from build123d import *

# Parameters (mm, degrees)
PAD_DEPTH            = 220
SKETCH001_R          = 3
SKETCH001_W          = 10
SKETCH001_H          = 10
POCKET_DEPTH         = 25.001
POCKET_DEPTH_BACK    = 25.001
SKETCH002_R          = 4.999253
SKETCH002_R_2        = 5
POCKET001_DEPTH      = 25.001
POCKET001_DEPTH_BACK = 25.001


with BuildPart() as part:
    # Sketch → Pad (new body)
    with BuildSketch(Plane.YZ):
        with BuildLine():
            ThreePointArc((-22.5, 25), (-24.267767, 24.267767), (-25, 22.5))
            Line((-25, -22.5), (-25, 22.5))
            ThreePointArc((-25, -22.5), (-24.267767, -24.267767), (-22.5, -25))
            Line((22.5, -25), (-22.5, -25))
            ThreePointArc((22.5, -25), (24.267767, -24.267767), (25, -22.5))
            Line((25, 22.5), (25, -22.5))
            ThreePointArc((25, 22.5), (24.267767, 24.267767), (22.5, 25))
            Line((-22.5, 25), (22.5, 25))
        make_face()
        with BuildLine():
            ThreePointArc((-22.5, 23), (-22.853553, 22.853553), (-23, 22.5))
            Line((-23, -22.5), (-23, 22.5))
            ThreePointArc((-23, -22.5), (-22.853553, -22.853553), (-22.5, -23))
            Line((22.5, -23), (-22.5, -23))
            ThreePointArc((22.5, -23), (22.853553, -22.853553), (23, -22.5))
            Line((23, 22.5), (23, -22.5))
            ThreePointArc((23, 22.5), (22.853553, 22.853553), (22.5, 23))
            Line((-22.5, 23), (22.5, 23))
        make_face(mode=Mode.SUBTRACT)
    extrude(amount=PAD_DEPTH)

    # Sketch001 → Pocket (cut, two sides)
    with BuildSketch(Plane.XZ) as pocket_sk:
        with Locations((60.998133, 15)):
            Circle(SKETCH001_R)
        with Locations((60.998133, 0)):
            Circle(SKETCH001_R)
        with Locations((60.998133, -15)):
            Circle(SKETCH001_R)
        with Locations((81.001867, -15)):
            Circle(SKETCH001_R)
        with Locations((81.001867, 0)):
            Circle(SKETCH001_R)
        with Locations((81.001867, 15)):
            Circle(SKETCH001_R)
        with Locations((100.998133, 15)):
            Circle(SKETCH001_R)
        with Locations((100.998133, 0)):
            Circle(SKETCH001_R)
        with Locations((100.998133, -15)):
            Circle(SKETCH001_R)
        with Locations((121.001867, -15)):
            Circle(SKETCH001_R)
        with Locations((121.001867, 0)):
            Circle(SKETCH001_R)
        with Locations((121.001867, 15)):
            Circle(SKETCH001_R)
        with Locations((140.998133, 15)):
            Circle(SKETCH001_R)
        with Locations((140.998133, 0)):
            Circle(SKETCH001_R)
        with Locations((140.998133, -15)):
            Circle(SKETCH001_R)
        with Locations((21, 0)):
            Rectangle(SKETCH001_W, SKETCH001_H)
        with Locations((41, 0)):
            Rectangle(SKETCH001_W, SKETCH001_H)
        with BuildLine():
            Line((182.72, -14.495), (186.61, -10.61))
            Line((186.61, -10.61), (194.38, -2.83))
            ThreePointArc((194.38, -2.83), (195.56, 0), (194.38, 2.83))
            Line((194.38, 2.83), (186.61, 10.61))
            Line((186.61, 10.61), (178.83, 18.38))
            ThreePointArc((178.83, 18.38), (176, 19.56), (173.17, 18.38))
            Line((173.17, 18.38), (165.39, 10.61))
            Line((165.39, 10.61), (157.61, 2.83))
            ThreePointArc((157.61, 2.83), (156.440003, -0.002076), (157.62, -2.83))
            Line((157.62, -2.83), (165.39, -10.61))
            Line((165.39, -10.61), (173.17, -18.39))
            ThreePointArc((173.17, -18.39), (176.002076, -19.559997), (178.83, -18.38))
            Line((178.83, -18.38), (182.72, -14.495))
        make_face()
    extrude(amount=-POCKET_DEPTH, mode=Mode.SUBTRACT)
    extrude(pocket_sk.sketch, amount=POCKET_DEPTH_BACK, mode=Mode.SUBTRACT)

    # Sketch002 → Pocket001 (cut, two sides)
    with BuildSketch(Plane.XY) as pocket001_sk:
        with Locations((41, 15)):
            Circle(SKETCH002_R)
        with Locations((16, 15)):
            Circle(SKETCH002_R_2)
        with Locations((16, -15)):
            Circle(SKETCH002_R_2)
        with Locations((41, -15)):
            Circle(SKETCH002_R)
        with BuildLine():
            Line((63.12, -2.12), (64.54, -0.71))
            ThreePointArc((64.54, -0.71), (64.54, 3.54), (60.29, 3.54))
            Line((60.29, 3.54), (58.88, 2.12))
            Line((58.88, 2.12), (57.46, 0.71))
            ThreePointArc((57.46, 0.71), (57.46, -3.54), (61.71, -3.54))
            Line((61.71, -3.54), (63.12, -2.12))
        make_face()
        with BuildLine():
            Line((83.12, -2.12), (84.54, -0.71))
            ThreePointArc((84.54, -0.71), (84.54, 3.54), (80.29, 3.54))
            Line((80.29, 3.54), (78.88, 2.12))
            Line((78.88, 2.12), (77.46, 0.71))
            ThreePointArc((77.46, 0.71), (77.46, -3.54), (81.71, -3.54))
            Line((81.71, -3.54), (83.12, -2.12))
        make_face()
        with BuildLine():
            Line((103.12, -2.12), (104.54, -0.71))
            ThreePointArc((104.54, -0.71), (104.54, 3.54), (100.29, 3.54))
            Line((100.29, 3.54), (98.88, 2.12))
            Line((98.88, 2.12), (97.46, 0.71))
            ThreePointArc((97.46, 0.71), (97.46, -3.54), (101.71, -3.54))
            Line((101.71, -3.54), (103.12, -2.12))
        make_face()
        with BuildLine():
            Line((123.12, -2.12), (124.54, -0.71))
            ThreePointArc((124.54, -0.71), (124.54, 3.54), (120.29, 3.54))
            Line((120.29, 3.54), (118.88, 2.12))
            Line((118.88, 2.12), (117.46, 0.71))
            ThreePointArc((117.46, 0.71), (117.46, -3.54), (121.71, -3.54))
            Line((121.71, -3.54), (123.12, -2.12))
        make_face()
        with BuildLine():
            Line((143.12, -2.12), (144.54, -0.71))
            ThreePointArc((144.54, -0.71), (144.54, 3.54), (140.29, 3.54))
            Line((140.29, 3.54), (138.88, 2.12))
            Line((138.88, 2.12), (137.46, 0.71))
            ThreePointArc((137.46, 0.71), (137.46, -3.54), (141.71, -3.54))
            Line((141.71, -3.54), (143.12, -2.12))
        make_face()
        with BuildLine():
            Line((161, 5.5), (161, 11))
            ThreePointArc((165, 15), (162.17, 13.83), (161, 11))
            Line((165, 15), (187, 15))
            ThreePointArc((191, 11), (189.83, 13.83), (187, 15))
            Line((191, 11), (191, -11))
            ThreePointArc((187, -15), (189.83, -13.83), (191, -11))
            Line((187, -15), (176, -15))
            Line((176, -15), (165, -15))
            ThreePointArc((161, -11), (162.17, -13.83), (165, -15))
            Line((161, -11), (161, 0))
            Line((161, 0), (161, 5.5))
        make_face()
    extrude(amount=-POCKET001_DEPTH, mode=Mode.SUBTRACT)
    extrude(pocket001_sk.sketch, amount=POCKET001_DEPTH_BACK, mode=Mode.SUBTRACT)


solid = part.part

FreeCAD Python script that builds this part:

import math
import FreeCAD as App
import Part
import Sketcher

V = App.Vector
Q = App.Units.Quantity

doc = App.newDocument("Part")
params = doc.addObject("Spreadsheet::Sheet", "Params")
for row, (alias, value) in enumerate([
    ("sketch1_radius", "2.5 mm"),
    ("sketch1_radius2", "0.500001 mm"),
    ("sketch1_width", "45 mm"),
    ("pad1_length", "220 mm"),
    ("sketch2_diameter", "6 mm"),
    ("sketch2_width", "10 mm"),
    ("sketch3_diameter", "10 mm"),
    ("sketch3_width", "22 mm"),
], start=1):
    params.set(f"A{row}", alias)
    params.set(f"B{row}", "=" + value)
    params.setAlias(f"B{row}", alias)

body = doc.addObject("PartDesign::Body", "Body")

# Sketch on YZ plane
sketch1 = body.newObject("Sketcher::SketchObject", "Sketch")
sketch1.AttachmentSupport = (doc.getObject("YZ_Plane"), [""])
sketch1.MapMode = "FlatFace"
sketch1.addGeometry([
    Part.ArcOfCircle(Part.Circle(V(-22.5, 22.5, 0), V(0, 0, 1), 2.5), math.radians(89.999996), math.radians(180.000004)),  # 0
    Part.LineSegment(V(-25, 22.5, 0), V(-25, -22.5, 0)),  # 1
    Part.ArcOfCircle(Part.Circle(V(-22.5, -22.5, 0), V(0, 0, 1), 2.5), math.radians(179.999996), math.radians(270.000004)),  # 2
    Part.LineSegment(V(-22.5, -25, 0), V(22.5, -25, 0)),  # 3
    Part.ArcOfCircle(Part.Circle(V(22.5, -22.5, 0), V(0, 0, 1), 2.5), math.radians(-90.000004), math.radians(0.000004)),  # 4
    Part.LineSegment(V(25, -22.5, 0), V(25, 22.5, 0)),  # 5
    Part.ArcOfCircle(Part.Circle(V(22.5, 22.5, 0), V(0, 0, 1), 2.5), math.radians(-0.000004), math.radians(90.000004)),  # 6
    Part.LineSegment(V(22.5, 25, 0), V(-22.5, 25, 0)),  # 7
    Part.ArcOfCircle(Part.Circle(V(-22.499999, 22.499999, 0), V(0, 0, 1), 0.500001), math.radians(90.000153), math.radians(179.999847)),  # 8
    Part.LineSegment(V(-22.5, 23, 0), V(22.5, 23, 0)),  # 9
    Part.ArcOfCircle(Part.Circle(V(22.499999, 22.499999, 0), V(0, 0, 1), 0.500001), math.radians(0.000153), math.radians(89.999847)),  # 10
    Part.LineSegment(V(23, 22.5, 0), V(23, -22.5, 0)),  # 11
    Part.ArcOfCircle(Part.Circle(V(22.499999, -22.499999, 0), V(0, 0, 1), 0.500001), math.radians(-89.999847), math.radians(-0.000153)),  # 12
    Part.LineSegment(V(22.5, -23, 0), V(-22.5, -23, 0)),  # 13
    Part.ArcOfCircle(Part.Circle(V(-22.499999, -22.499999, 0), V(0, 0, 1), 0.500001), math.radians(-179.999847), math.radians(-90.000153)),  # 14
    Part.LineSegment(V(-23, -22.5, 0), V(-23, 22.5, 0)),  # 15
], False)
sketch1.addConstraint([
    Sketcher.Constraint("Tangent", 0, 2, 1, 1),
    Sketcher.Constraint("Tangent", 1, 2, 2, 1),
    Sketcher.Constraint("Tangent", 2, 2, 3, 1),
    Sketcher.Constraint("Tangent", 3, 2, 4, 1),
    Sketcher.Constraint("Tangent", 4, 2, 5, 1),
    Sketcher.Constraint("Tangent", 5, 2, 6, 1),
    Sketcher.Constraint("Tangent", 6, 2, 7, 1),
    Sketcher.Constraint("Tangent", 7, 2, 0, 1),
    Sketcher.Constraint("Coincident", 8, 1, 9, 1),
    Sketcher.Constraint("Coincident", 9, 2, 10, 2),
    Sketcher.Constraint("Coincident", 10, 1, 11, 1),
    Sketcher.Constraint("Coincident", 11, 2, 12, 2),
    Sketcher.Constraint("Coincident", 12, 1, 13, 1),
    Sketcher.Constraint("Coincident", 13, 2, 14, 2),
    Sketcher.Constraint("Coincident", 14, 1, 15, 1),
    Sketcher.Constraint("Coincident", 15, 2, 8, 2),
    Sketcher.Constraint("Vertical", 1),
    Sketcher.Constraint("Horizontal", 3),
    Sketcher.Constraint("Vertical", 5),
    Sketcher.Constraint("Horizontal", 7),
    Sketcher.Constraint("Horizontal", 9),
    Sketcher.Constraint("Vertical", 11),
    Sketcher.Constraint("Horizontal", 13),
    Sketcher.Constraint("Vertical", 15),
    Sketcher.Constraint("Coincident", 8, 3, 0, 3),
    Sketcher.Constraint("Coincident", 10, 3, 6, 3),
    Sketcher.Constraint("Coincident", 12, 3, 4, 3),
    Sketcher.Constraint("Equal", 0, 2),
    Sketcher.Constraint("Equal", 2, 4),
    Sketcher.Constraint("Equal", 4, 6),
    Sketcher.Constraint("Equal", 12, 14),
    Sketcher.Constraint("Symmetric", 0, 3, 4, 3, -1, 1),
    Sketcher.Constraint("Horizontal", 5, 2, 10, 1),
    Sketcher.Constraint("Horizontal", 4, 2, 11, 2),
    Sketcher.Constraint("Horizontal", 11, 2, 14, 1),
    Sketcher.Constraint("Horizontal", 10, 1, 15, 2),
    Sketcher.Constraint("Vertical", 7, 2, 8, 1),
    Sketcher.Constraint("Vertical", 6, 2, 9, 2),
    Sketcher.Constraint("Vertical", 9, 2, 12, 1),
    Sketcher.Constraint("Vertical", 8, 1, 13, 2),
    Sketcher.Constraint("Equal", 13, 1),
    Sketcher.Constraint("Radius", 0, 2.5),
    Sketcher.Constraint("Radius", 8, 0.500001),
    Sketcher.Constraint("DistanceX", 3, 1, 3, 2, 45.0),
])
sketch1.setExpression("Constraints[41]", "Params.sketch1_radius")
sketch1.setExpression("Constraints[42]", "Params.sketch1_radius2")
sketch1.setExpression("Constraints[43]", "Params.sketch1_width")
pad1 = body.newObject("PartDesign::Pad", "Pad")
pad1.Profile = sketch1
pad1.setExpression("Length", "Params.pad1_length")

# Sketch on XZ plane
sketch2 = body.newObject("Sketcher::SketchObject", "Sketch001")
sketch2.AttachmentSupport = (doc.getObject("XZ_Plane"), [""])
sketch2.MapMode = "FlatFace"
sketch2.addGeometry([
    Part.Circle(V(60.998133, 15, 0), V(0, 0, 1), 3),  # 0
    Part.Circle(V(60.998133, 0, 0), V(0, 0, 1), 3),  # 1
    Part.Circle(V(60.998133, -15, 0), V(0, 0, 1), 3),  # 2
    Part.Circle(V(81.001867, -15, 0), V(0, 0, 1), 3),  # 3
    Part.Circle(V(81.001867, 0, 0), V(0, 0, 1), 3),  # 4
    Part.Circle(V(81.001867, 15, 0), V(0, 0, 1), 3),  # 5
    Part.Circle(V(100.998133, 15, 0), V(0, 0, 1), 3),  # 6
    Part.Circle(V(100.998133, 0, 0), V(0, 0, 1), 3),  # 7
    Part.Circle(V(100.998133, -15, 0), V(0, 0, 1), 3),  # 8
    Part.Circle(V(121.001867, -15, 0), V(0, 0, 1), 3),  # 9
    Part.Circle(V(121.001867, 0, 0), V(0, 0, 1), 3),  # 10
    Part.Circle(V(121.001867, 15, 0), V(0, 0, 1), 3),  # 11
    Part.Circle(V(140.998133, 15, 0), V(0, 0, 1), 3),  # 12
    Part.Circle(V(140.998133, 0, 0), V(0, 0, 1), 3),  # 13
    Part.Circle(V(140.998133, -15, 0), V(0, 0, 1), 3),  # 14
    Part.LineSegment(V(16, 5, 0), V(16, -5, 0)),  # 15
    Part.LineSegment(V(16, -5, 0), V(26, -5, 0)),  # 16
    Part.LineSegment(V(26, -5, 0), V(26, 5, 0)),  # 17
    Part.LineSegment(V(26, 5, 0), V(16, 5, 0)),  # 18
    Part.LineSegment(V(36, 5, 0), V(36, -5, 0)),  # 19
    Part.LineSegment(V(36, -5, 0), V(46, -5, 0)),  # 20
    Part.LineSegment(V(46, -5, 0), V(46, 5, 0)),  # 21
    Part.LineSegment(V(46, 5, 0), V(36, 5, 0)),  # 22
    Part.LineSegment(V(186.61, -10.61, 0), V(194.38, -2.83, 0)),  # 23
    Part.ArcOfCircle(Part.Circle(V(191.576398, 0, 0), V(0, 0, 1), 3.983602), math.radians(-45.268478), math.radians(45.268478)),  # 24
    Part.LineSegment(V(194.38, 2.83, 0), V(186.61, 10.61, 0)),  # 25
    Part.LineSegment(V(186.61, 10.61, 0), V(178.83, 18.38, 0)),  # 26
    Part.ArcOfCircle(Part.Circle(V(176, 15.576398, 0), V(0, 0, 1), 3.983602), math.radians(44.731522), math.radians(135.268478)),  # 27
    Part.LineSegment(V(173.17, 18.38, 0), V(165.39, 10.61, 0)),  # 28
    Part.LineSegment(V(165.39, 10.61, 0), V(157.61, 2.83, 0)),  # 29
    Part.ArcOfCircle(Part.Circle(V(160.435553, 0.004983, 0), V(0, 0, 1), 3.995556), math.radians(135.005436), math.radians(225.197023)),  # 30
    Part.LineSegment(V(157.62, -2.83, 0), V(165.39, -10.61, 0)),  # 31
    Part.LineSegment(V(165.39, -10.61, 0), V(173.17, -18.39, 0)),  # 32
    Part.ArcOfCircle(Part.Circle(V(175.995017, -15.564447, 0), V(0, 0, 1), 3.995556), math.radians(-134.994564), math.radians(-44.802977)),  # 33
    Part.LineSegment(V(178.83, -18.38, 0), V(186.61, -10.61, 0)),  # 34
], False)
sketch2.addConstraint([
    Sketcher.Constraint("Coincident", 15, 2, 16, 1),
    Sketcher.Constraint("Coincident", 16, 2, 17, 1),
    Sketcher.Constraint("Coincident", 17, 2, 18, 1),
    Sketcher.Constraint("Coincident", 18, 2, 15, 1),
    Sketcher.Constraint("Coincident", 19, 2, 20, 1),
    Sketcher.Constraint("Coincident", 20, 2, 21, 1),
    Sketcher.Constraint("Coincident", 21, 2, 22, 1),
    Sketcher.Constraint("Coincident", 22, 2, 19, 1),
    Sketcher.Constraint("Coincident", 23, 2, 24, 1),
    Sketcher.Constraint("Coincident", 24, 2, 25, 1),
    Sketcher.Constraint("Coincident", 25, 2, 26, 1),
    Sketcher.Constraint("Coincident", 26, 2, 27, 1),
    Sketcher.Constraint("Coincident", 27, 2, 28, 1),
    Sketcher.Constraint("Coincident", 28, 2, 29, 1),
    Sketcher.Constraint("Coincident", 29, 2, 30, 1),
    Sketcher.Constraint("Coincident", 30, 2, 31, 1),
    Sketcher.Constraint("Coincident", 31, 2, 32, 1),
    Sketcher.Constraint("Coincident", 32, 2, 33, 1),
    Sketcher.Constraint("Coincident", 33, 2, 34, 1),
    Sketcher.Constraint("Coincident", 34, 2, 23, 1),
    Sketcher.Constraint("Vertical", 15),
    Sketcher.Constraint("Horizontal", 16),
    Sketcher.Constraint("Vertical", 17),
    Sketcher.Constraint("Horizontal", 18),
    Sketcher.Constraint("Vertical", 19),
    Sketcher.Constraint("Horizontal", 20),
    Sketcher.Constraint("Vertical", 21),
    Sketcher.Constraint("Horizontal", 22),
    Sketcher.Constraint("Equal", 0, 1),
    Sketcher.Constraint("Equal", 1, 2),
    Sketcher.Constraint("Equal", 2, 3),
    Sketcher.Constraint("Equal", 3, 4),
    Sketcher.Constraint("Equal", 4, 5),
    Sketcher.Constraint("Equal", 5, 6),
    Sketcher.Constraint("Equal", 6, 7),
    Sketcher.Constraint("Equal", 7, 8),
    Sketcher.Constraint("Equal", 8, 9),
    Sketcher.Constraint("Equal", 9, 10),
    Sketcher.Constraint("Equal", 10, 11),
    Sketcher.Constraint("Equal", 11, 12),
    Sketcher.Constraint("Equal", 12, 13),
    Sketcher.Constraint("Equal", 13, 14),
    Sketcher.Constraint("Equal", 24, 27),
    Sketcher.Constraint("Equal", 30, 33),
    Sketcher.Constraint("Symmetric", 0, 3, 2, 3, -1),
    Sketcher.Constraint("Symmetric", 3, 3, 5, 3, -1),
    Sketcher.Constraint("Symmetric", 6, 3, 8, 3, -1),
    Sketcher.Constraint("Symmetric", 9, 3, 11, 3, -1),
    Sketcher.Constraint("Symmetric", 12, 3, 14, 3, -1),
    Sketcher.Constraint("Symmetric", 23, 2, 24, 2, -1),
    Sketcher.Constraint("Symmetric", 28, 2, 31, 2, -1),
    Sketcher.Constraint("Symmetric", 26, 2, 33, 2, -1),
    Sketcher.Constraint("Symmetric", 25, 2, 34, 2, -1),
    Sketcher.Constraint("PointOnObject", 1, 3, -1),
    Sketcher.Constraint("PointOnObject", 4, 3, -1),
    Sketcher.Constraint("PointOnObject", 7, 3, -1),
    Sketcher.Constraint("PointOnObject", 10, 3, -1),
    Sketcher.Constraint("PointOnObject", 13, 3, -1),
    Sketcher.Constraint("Perpendicular", 23, 26),
    Sketcher.Constraint("Perpendicular", 25, 28),
    Sketcher.Constraint("Perpendicular", 28, 31),
    Sketcher.Constraint("Perpendicular", 29, 32),
    Sketcher.Constraint("Horizontal", 2, 3, 3, 3),
    Sketcher.Constraint("Horizontal", 5, 3, 6, 3),
    Sketcher.Constraint("Horizontal", 8, 3, 9, 3),
    Sketcher.Constraint("Horizontal", 11, 3, 12, 3),
    Sketcher.Constraint("Horizontal", 16, 2, 19, 2),
    Sketcher.Constraint("Horizontal", 18, 2, 21, 2),
    Sketcher.Constraint("Horizontal", 26, 2, 27, 2),
    Sketcher.Constraint("Horizontal", 25, 2, 28, 2),
    Sketcher.Constraint("Horizontal", 24, 2, 29, 2),
    Sketcher.Constraint("Horizontal", 23, 2, 30, 2),
    Sketcher.Constraint("Vertical", 0, 3, 1, 3),
    Sketcher.Constraint("Vertical", 3, 3, 4, 3),
    Sketcher.Constraint("Vertical", 6, 3, 7, 3),
    Sketcher.Constraint("Vertical", 9, 3, 10, 3),
    Sketcher.Constraint("Vertical", 12, 3, 13, 3),
    Sketcher.Constraint("Vertical", 27, 2, 32, 2),
    Sketcher.Constraint("Equal", 18, 20),
    Sketcher.Constraint("Equal", 22, 15),
    Sketcher.Constraint("Equal", 25, 26),
    Sketcher.Constraint("Diameter", 0, 6.0),
    Sketcher.Constraint("DistanceX", 16, 1, 16, 2, 10.0),
    Sketcher.Constraint("Angle", 29, Q("-135 deg")),
    Sketcher.Constraint("DistanceY", -1, 1, 0, 3, 15.0),
    Sketcher.Constraint("DistanceX", -1, 1, 27, 3, 176.0),
    Sketcher.Constraint("DistanceX", -1, 1, 15, 2, 16.0),
    Sketcher.Constraint("DistanceY", 15, 2, -1, 1, 5.0),
    Sketcher.Constraint("DistanceX", -1, 1, 19, 2, 36.0),
    Sketcher.Constraint("DistanceX", 0, 3, 6, 3, 40.0),
    Sketcher.Constraint("DistanceX", 3, 3, 9, 3, 40.0),
    Sketcher.Constraint("DistanceX", 6, 3, 12, 3, 40.0),
    Sketcher.Constraint("Radius", 24, 3.983602),
    Sketcher.Constraint("DistanceX", -1, 1, 23, 2, 194.38),
    Sketcher.Constraint("DistanceY", 23, 2, -1, 1, 2.83),
    Sketcher.Constraint("DistanceX", -1, 1, 25, 2, 186.61),
    Sketcher.Constraint("DistanceY", -1, 1, 25, 2, 10.61),
    Sketcher.Constraint("Radius", 30, 3.995556),
    Sketcher.Constraint("DistanceX", 10, 3, 24, 3, 70.574531),
    Sketcher.Constraint("DistanceX", 13, 3, 30, 3, 19.43742),
])
sketch2.setExpression("Constraints[81]", "Params.sketch2_diameter")
sketch2.setExpression("Constraints[82]", "Params.sketch2_width")
pocket1 = body.newObject("PartDesign::Pocket", "Pocket")
pocket1.Profile = sketch2
pocket1.Type = "ThroughAll"
pocket1.Midplane = True

# Sketch on XY plane
sketch3 = body.newObject("Sketcher::SketchObject", "Sketch002")
sketch3.AttachmentSupport = (doc.getObject("XY_Plane"), [""])
sketch3.MapMode = "FlatFace"
sketch3.addGeometry([
    Part.Circle(V(41, 15, 0), V(0, 0, 1), 4.999253),  # 0
    Part.Circle(V(16, 15, 0), V(0, 0, 1), 5),  # 1
    Part.Circle(V(16, -15, 0), V(0, 0, 1), 5),  # 2
    Part.Circle(V(41, -15, 0), V(0, 0, 1), 4.999253),  # 3
    Part.LineSegment(V(63.12, -2.12, 0), V(64.54, -0.71, 0)),  # 4
    Part.ArcOfCircle(Part.Circle(V(62.415, 1.415, 0), V(0, 0, 1), 3.005204), math.radians(-45), math.radians(135)),  # 5
    Part.LineSegment(V(60.29, 3.54, 0), V(58.88, 2.12, 0)),  # 6
    Part.LineSegment(V(58.88, 2.12, 0), V(57.46, 0.71, 0)),  # 7
    Part.ArcOfCircle(Part.Circle(V(59.585, -1.415, 0), V(0, 0, 1), 3.005204), math.radians(135), math.radians(315)),  # 8
    Part.LineSegment(V(61.71, -3.54, 0), V(63.12, -2.12, 0)),  # 9
    Part.LineSegment(V(83.12, -2.12, 0), V(84.54, -0.71, 0)),  # 10
    Part.ArcOfCircle(Part.Circle(V(82.415, 1.415, 0), V(0, 0, 1), 3.005204), math.radians(-45), math.radians(135)),  # 11
    Part.LineSegment(V(80.29, 3.54, 0), V(78.88, 2.12, 0)),  # 12
    Part.LineSegment(V(78.88, 2.12, 0), V(77.46, 0.71, 0)),  # 13
    Part.ArcOfCircle(Part.Circle(V(79.585, -1.415, 0), V(0, 0, 1), 3.005204), math.radians(135), math.radians(315)),  # 14
    Part.LineSegment(V(81.71, -3.54, 0), V(83.12, -2.12, 0)),  # 15
    Part.LineSegment(V(103.12, -2.12, 0), V(104.54, -0.71, 0)),  # 16
    Part.ArcOfCircle(Part.Circle(V(102.415, 1.415, 0), V(0, 0, 1), 3.005204), math.radians(-45), math.radians(135)),  # 17
    Part.LineSegment(V(100.29, 3.54, 0), V(98.88, 2.12, 0)),  # 18
    Part.LineSegment(V(98.88, 2.12, 0), V(97.46, 0.71, 0)),  # 19
    Part.ArcOfCircle(Part.Circle(V(99.585, -1.415, 0), V(0, 0, 1), 3.005204), math.radians(135), math.radians(315)),  # 20
    Part.LineSegment(V(101.71, -3.54, 0), V(103.12, -2.12, 0)),  # 21
    Part.LineSegment(V(123.12, -2.12, 0), V(124.54, -0.71, 0)),  # 22
    Part.ArcOfCircle(Part.Circle(V(122.415, 1.415, 0), V(0, 0, 1), 3.005204), math.radians(-45), math.radians(135)),  # 23
    Part.LineSegment(V(120.29, 3.54, 0), V(118.88, 2.12, 0)),  # 24
    Part.LineSegment(V(118.88, 2.12, 0), V(117.46, 0.71, 0)),  # 25
    Part.ArcOfCircle(Part.Circle(V(119.585, -1.415, 0), V(0, 0, 1), 3.005204), math.radians(135), math.radians(315)),  # 26
    Part.LineSegment(V(121.71, -3.54, 0), V(123.12, -2.12, 0)),  # 27
    Part.LineSegment(V(143.12, -2.12, 0), V(144.54, -0.71, 0)),  # 28
    Part.ArcOfCircle(Part.Circle(V(142.415, 1.415, 0), V(0, 0, 1), 3.005204), math.radians(-45), math.radians(135)),  # 29
    Part.LineSegment(V(140.29, 3.54, 0), V(138.88, 2.12, 0)),  # 30
    Part.LineSegment(V(138.88, 2.12, 0), V(137.46, 0.71, 0)),  # 31
    Part.ArcOfCircle(Part.Circle(V(139.585, -1.415, 0), V(0, 0, 1), 3.005204), math.radians(135), math.radians(315)),  # 32
    Part.LineSegment(V(141.71, -3.54, 0), V(143.12, -2.12, 0)),  # 33
    Part.ArcOfCircle(Part.Circle(V(164.994639, 11.005361, 0), V(0, 0, 1), 3.994642), math.radians(89.9231), math.radians(180.0769)),  # 34
    Part.LineSegment(V(161, 11, 0), V(161, -11, 0)),  # 35
    Part.ArcOfCircle(Part.Circle(V(164.994639, -11.005361, 0), V(0, 0, 1), 3.994642), math.radians(179.9231), math.radians(270.0769)),  # 36
    Part.LineSegment(V(165, -15, 0), V(187, -15, 0)),  # 37
    Part.ArcOfCircle(Part.Circle(V(187.005361, -11.005361, 0), V(0, 0, 1), 3.994642), math.radians(-90.0769), math.radians(0.0769)),  # 38
    Part.LineSegment(V(191, -11, 0), V(191, 11, 0)),  # 39
    Part.ArcOfCircle(Part.Circle(V(187.005361, 11.005361, 0), V(0, 0, 1), 3.994642), math.radians(-0.0769), math.radians(90.0769)),  # 40
    Part.LineSegment(V(187, 15, 0), V(165, 15, 0)),  # 41
], False)
sketch3.addConstraint([
    Sketcher.Constraint("Coincident", 4, 2, 5, 1),
    Sketcher.Constraint("Coincident", 5, 2, 6, 1),
    Sketcher.Constraint("Coincident", 6, 2, 7, 1),
    Sketcher.Constraint("Coincident", 7, 2, 8, 1),
    Sketcher.Constraint("Coincident", 8, 2, 9, 1),
    Sketcher.Constraint("Coincident", 9, 2, 4, 1),
    Sketcher.Constraint("Coincident", 10, 2, 11, 1),
    Sketcher.Constraint("Coincident", 11, 2, 12, 1),
    Sketcher.Constraint("Coincident", 12, 2, 13, 1),
    Sketcher.Constraint("Coincident", 13, 2, 14, 1),
    Sketcher.Constraint("Coincident", 14, 2, 15, 1),
    Sketcher.Constraint("Coincident", 15, 2, 10, 1),
    Sketcher.Constraint("Coincident", 16, 2, 17, 1),
    Sketcher.Constraint("Coincident", 17, 2, 18, 1),
    Sketcher.Constraint("Coincident", 18, 2, 19, 1),
    Sketcher.Constraint("Coincident", 19, 2, 20, 1),
    Sketcher.Constraint("Coincident", 20, 2, 21, 1),
    Sketcher.Constraint("Coincident", 21, 2, 16, 1),
    Sketcher.Constraint("Coincident", 22, 2, 23, 1),
    Sketcher.Constraint("Coincident", 23, 2, 24, 1),
    Sketcher.Constraint("Coincident", 24, 2, 25, 1),
    Sketcher.Constraint("Coincident", 25, 2, 26, 1),
    Sketcher.Constraint("Coincident", 26, 2, 27, 1),
    Sketcher.Constraint("Coincident", 27, 2, 22, 1),
    Sketcher.Constraint("Coincident", 28, 2, 29, 1),
    Sketcher.Constraint("Coincident", 29, 2, 30, 1),
    Sketcher.Constraint("Coincident", 30, 2, 31, 1),
    Sketcher.Constraint("Coincident", 31, 2, 32, 1),
    Sketcher.Constraint("Coincident", 32, 2, 33, 1),
    Sketcher.Constraint("Coincident", 33, 2, 28, 1),
    Sketcher.Constraint("Coincident", 34, 2, 35, 1),
    Sketcher.Constraint("Coincident", 35, 2, 36, 1),
    Sketcher.Constraint("Coincident", 36, 2, 37, 1),
    Sketcher.Constraint("Coincident", 37, 2, 38, 1),
    Sketcher.Constraint("Coincident", 38, 2, 39, 1),
    Sketcher.Constraint("Coincident", 39, 2, 40, 1),
    Sketcher.Constraint("Coincident", 40, 2, 41, 1),
    Sketcher.Constraint("Coincident", 41, 2, 34, 1),
    Sketcher.Constraint("Vertical", 35),
    Sketcher.Constraint("Horizontal", 37),
    Sketcher.Constraint("Vertical", 39),
    Sketcher.Constraint("Horizontal", 41),
    Sketcher.Constraint("Equal", 1, 2),
    Sketcher.Constraint("Equal", 0, 3),
    Sketcher.Constraint("Equal", 5, 8),
    Sketcher.Constraint("Equal", 8, 11),
    Sketcher.Constraint("Equal", 11, 14),
    Sketcher.Constraint("Equal", 14, 17),
    Sketcher.Constraint("Equal", 17, 20),
    Sketcher.Constraint("Equal", 20, 23),
    Sketcher.Constraint("Equal", 23, 26),
    Sketcher.Constraint("Equal", 26, 29),
    Sketcher.Constraint("Equal", 29, 32),
    Sketcher.Constraint("Equal", 34, 36),
    Sketcher.Constraint("Equal", 36, 38),
    Sketcher.Constraint("Equal", 38, 40),
    Sketcher.Constraint("Symmetric", 1, 3, 2, 3, -1),
    Sketcher.Constraint("Symmetric", 0, 3, 3, 3, -1),
    Sketcher.Constraint("Symmetric", 37, 2, 40, 2, -1),
    Sketcher.Constraint("Parallel", 4, 7),
    Sketcher.Constraint("Parallel", 6, 9),
    Sketcher.Constraint("Parallel", 7, 10),
    Sketcher.Constraint("Parallel", 9, 12),
    Sketcher.Constraint("Parallel", 10, 13),
    Sketcher.Constraint("Parallel", 12, 15),
    Sketcher.Constraint("Parallel", 13, 16),
    Sketcher.Constraint("Parallel", 15, 18),
    Sketcher.Constraint("Parallel", 16, 19),
    Sketcher.Constraint("Parallel", 18, 21),
    Sketcher.Constraint("Parallel", 19, 22),
    Sketcher.Constraint("Parallel", 21, 24),
    Sketcher.Constraint("Parallel", 22, 25),
    Sketcher.Constraint("Parallel", 24, 27),
    Sketcher.Constraint("Parallel", 25, 28),
    Sketcher.Constraint("Parallel", 27, 30),
    Sketcher.Constraint("Parallel", 28, 31),
    Sketcher.Constraint("Parallel", 30, 33),
    Sketcher.Constraint("Horizontal", 0, 3, 1, 3),
    Sketcher.Constraint("Horizontal", 5, 3, 11, 3),
    Sketcher.Constraint("Horizontal", 8, 3, 14, 3),
    Sketcher.Constraint("Horizontal", 11, 3, 17, 3),
    Sketcher.Constraint("Horizontal", 14, 3, 20, 3),
    Sketcher.Constraint("Horizontal", 17, 3, 23, 3),
    Sketcher.Constraint("Horizontal", 20, 3, 26, 3),
    Sketcher.Constraint("Horizontal", 23, 3, 29, 3),
    Sketcher.Constraint("Horizontal", 26, 3, 32, 3),
    Sketcher.Constraint("Horizontal", 4, 2, 10, 2),
    Sketcher.Constraint("Horizontal", 5, 2, 11, 2),
    Sketcher.Constraint("Horizontal", 6, 2, 12, 2),
    Sketcher.Constraint("Horizontal", 7, 2, 13, 2),
    Sketcher.Constraint("Horizontal", 8, 2, 14, 2),
    Sketcher.Constraint("Horizontal", 10, 2, 16, 2),
    Sketcher.Constraint("Horizontal", 11, 2, 17, 2),
    Sketcher.Constraint("Horizontal", 12, 2, 18, 2),
    Sketcher.Constraint("Horizontal", 13, 2, 19, 2),
    Sketcher.Constraint("Horizontal", 14, 2, 20, 2),
    Sketcher.Constraint("Horizontal", 16, 2, 22, 2),
    Sketcher.Constraint("Horizontal", 17, 2, 23, 2),
    Sketcher.Constraint("Horizontal", 18, 2, 24, 2),
    Sketcher.Constraint("Horizontal", 19, 2, 25, 2),
    Sketcher.Constraint("Horizontal", 20, 2, 26, 2),
    Sketcher.Constraint("Horizontal", 22, 2, 28, 2),
    Sketcher.Constraint("Horizontal", 23, 2, 29, 2),
    Sketcher.Constraint("Horizontal", 24, 2, 30, 2),
    Sketcher.Constraint("Horizontal", 25, 2, 31, 2),
    Sketcher.Constraint("Horizontal", 26, 2, 32, 2),
    Sketcher.Constraint("Horizontal", 3, 3, 36, 2),
    Sketcher.Constraint("Horizontal", 35, 2, 38, 2),
    Sketcher.Constraint("Horizontal", 34, 2, 39, 2),
    Sketcher.Constraint("Vertical", 36, 2, 41, 2),
    Sketcher.Constraint("Equal", 41, 35),
    Sketcher.Constraint("Equal", 4, 6),
    Sketcher.Constraint("Equal", 6, 7),
    Sketcher.Constraint("Diameter", 1, 10.0),
    Sketcher.Constraint("DistanceX", 37, 1, 37, 2, 22.0),
    Sketcher.Constraint("DistanceX", -1, 1, 0, 3, 41.0),
    Sketcher.Constraint("DistanceY", -1, 1, 0, 3, 15.0),
    Sketcher.Constraint("DistanceX", -1, 1, 1, 3, 16.0),
    Sketcher.Constraint("DistanceX", -1, 1, 34, 2, 161.0),
    Sketcher.Constraint("DistanceY", -1, 1, 34, 2, 11.0),
    Sketcher.Constraint("DistanceX", -1, 1, 36, 2, 165.0),
    Sketcher.Constraint("DistanceX", -1, 1, 38, 2, 191.0),
    Sketcher.Constraint("DistanceX", 5, 3, 11, 3, 20.0),
    Sketcher.Constraint("DistanceX", 11, 3, 17, 3, 20.0),
    Sketcher.Constraint("DistanceX", 17, 3, 23, 3, 20.0),
    Sketcher.Constraint("DistanceX", 23, 3, 29, 3, 20.0),
    Sketcher.Constraint("DistanceX", -1, 1, 4, 2, 64.54),
    Sketcher.Constraint("DistanceY", 4, 2, -1, 1, 0.71),
    Sketcher.Constraint("DistanceX", -1, 1, 5, 2, 60.29),
    Sketcher.Constraint("DistanceY", -1, 1, 5, 2, 3.54),
    Sketcher.Constraint("DistanceX", -1, 1, 6, 2, 58.88),
    Sketcher.Constraint("DistanceY", -1, 1, 6, 2, 2.12),
    Sketcher.Constraint("DistanceX", -1, 1, 7, 2, 57.46),
    Sketcher.Constraint("DistanceX", 8, 3, 5, 3, 2.83),
    Sketcher.Constraint("Diameter", 0, 9.998506),
    Sketcher.Constraint("DistanceX", -1, 1, 5, 3, 62.415),
    Sketcher.Constraint("Radius", 34, 3.994642),
])
sketch3.setExpression("Constraints[113]", "Params.sketch3_diameter")
sketch3.setExpression("Constraints[114]", "Params.sketch3_width")
pocket2 = body.newObject("PartDesign::Pocket", "Pocket001")
pocket2.Profile = sketch3
pocket2.Type = "ThroughAll"
pocket2.Midplane = True

doc.recompute()
